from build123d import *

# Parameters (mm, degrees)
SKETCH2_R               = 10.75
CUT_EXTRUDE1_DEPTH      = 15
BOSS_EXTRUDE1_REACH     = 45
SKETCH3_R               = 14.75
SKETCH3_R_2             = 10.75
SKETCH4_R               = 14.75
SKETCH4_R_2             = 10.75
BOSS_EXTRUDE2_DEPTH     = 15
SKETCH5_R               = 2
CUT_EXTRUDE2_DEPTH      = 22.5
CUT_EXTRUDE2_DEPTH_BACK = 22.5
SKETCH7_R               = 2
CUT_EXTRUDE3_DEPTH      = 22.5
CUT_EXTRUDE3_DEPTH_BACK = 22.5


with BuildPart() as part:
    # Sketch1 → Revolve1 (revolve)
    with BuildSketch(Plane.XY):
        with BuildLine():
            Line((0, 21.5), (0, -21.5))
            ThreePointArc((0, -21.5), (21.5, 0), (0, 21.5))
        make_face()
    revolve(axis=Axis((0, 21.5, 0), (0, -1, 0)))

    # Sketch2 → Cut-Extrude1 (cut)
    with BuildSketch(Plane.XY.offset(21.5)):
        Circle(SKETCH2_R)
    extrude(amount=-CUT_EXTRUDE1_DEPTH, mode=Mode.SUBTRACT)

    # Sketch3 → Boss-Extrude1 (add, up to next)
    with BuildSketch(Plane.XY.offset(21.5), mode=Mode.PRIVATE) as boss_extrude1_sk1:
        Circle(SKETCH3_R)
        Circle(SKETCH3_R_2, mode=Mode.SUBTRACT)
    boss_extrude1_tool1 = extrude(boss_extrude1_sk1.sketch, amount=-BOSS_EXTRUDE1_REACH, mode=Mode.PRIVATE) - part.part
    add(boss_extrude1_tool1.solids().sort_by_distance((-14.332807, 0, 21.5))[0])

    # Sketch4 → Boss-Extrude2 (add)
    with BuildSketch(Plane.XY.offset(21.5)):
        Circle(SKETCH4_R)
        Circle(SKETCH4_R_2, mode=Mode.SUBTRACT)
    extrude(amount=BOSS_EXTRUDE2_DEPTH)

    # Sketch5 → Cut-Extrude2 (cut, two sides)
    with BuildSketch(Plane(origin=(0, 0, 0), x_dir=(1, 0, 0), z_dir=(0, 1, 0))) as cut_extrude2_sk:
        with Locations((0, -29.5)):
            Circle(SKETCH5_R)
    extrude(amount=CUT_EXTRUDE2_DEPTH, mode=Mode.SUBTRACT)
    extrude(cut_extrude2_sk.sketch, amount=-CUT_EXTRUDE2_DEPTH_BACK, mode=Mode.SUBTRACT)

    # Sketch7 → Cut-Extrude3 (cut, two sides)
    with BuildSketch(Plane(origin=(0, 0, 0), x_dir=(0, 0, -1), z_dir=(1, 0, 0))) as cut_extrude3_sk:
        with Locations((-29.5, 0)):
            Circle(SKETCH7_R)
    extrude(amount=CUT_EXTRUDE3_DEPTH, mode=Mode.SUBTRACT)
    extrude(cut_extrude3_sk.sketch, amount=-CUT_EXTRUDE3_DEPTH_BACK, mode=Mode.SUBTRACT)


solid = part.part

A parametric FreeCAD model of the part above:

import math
import FreeCAD as App
import Part
import Sketcher

V = App.Vector
Q = App.Units.Quantity

doc = App.newDocument("Part")
body = doc.addObject("PartDesign::Body", "Body")

sketch1 = body.newObject("Sketcher::SketchObject", "Sketch")
sketch1.AttachmentSupport = (doc.getObject("XY_Plane"), [""])
sketch1.MapMode = "FlatFace"
sketch1.addGeometry(Part.LineSegment(V(0, 21.5, 0), V(0, -21.5, 0)), False)
sketch1.addGeometry(Part.ArcOfCircle(Part.Circle(V(0, 0, 0), V(0, 0, 1), 21.5), math.radians(-90), math.radians(90)), False)
sketch1.addConstraint(Sketcher.Constraint("Coincident", 0, 1, 1, 2))
sketch1.addConstraint(Sketcher.Constraint("Coincident", 1, 1, 0, 2))
sketch1.addConstraint(Sketcher.Constraint("Vertical", 0))
sketch1.addConstraint(Sketcher.Constraint("Coincident", 1, 3, -1, 1))
sketch1.addConstraint(Sketcher.Constraint("PointOnObject", 0, 1, -2))
sketch1.addConstraint(Sketcher.Constraint("Radius", 1, Q("21.5 mm")))
revolution = body.newObject("PartDesign::Revolution", "Revolution")
revolution.Profile = sketch1
revolution.ReferenceAxis = (sketch1, ["V_Axis"])
revolution.Angle = 360

sketch2 = body.newObject("Sketcher::SketchObject", "Sketch001")
sketch2.AttachmentSupport = (doc.getObject("XY_Plane"), [""])
sketch2.MapMode = "FlatFace"
sketch2.AttachmentOffset = App.Placement(V(0, 0, 21.5), App.Rotation())
sketch2.addGeometry(Part.Circle(V(0, 0, 0), V(0, 0, 1), 10.75), False)
sketch2.addConstraint(Sketcher.Constraint("Coincident", 0, 3, -1, 1))
sketch2.addConstraint(Sketcher.Constraint("Diameter", 0, Q("21.5 mm")))
pocket1 = body.newObject("PartDesign::Pocket", "Pocket")
pocket1.Profile = sketch2
pocket1.Length = 15

sketch3 = body.newObject("Sketcher::SketchObject", "Sketch002")
sketch3.AttachmentSupport = (doc.getObject("XY_Plane"), [""])
sketch3.MapMode = "FlatFace"
sketch3.AttachmentOffset = App.Placement(V(0, 0, 21.5), App.Rotation())
sketch3.addGeometry(Part.Circle(V(0, 0, 0), V(0, 0, 1), 14.75), False)
sketch3.addGeometry(Part.Circle(V(0, 0, 0), V(0, 0, 1), 10.75), False)
sketch3.addConstraint(Sketcher.Constraint("Coincident", 0, 3, -1, 1))
sketch3.addConstraint(Sketcher.Constraint("Coincident", 1, 3, -1, 1))
sketch3.addConstraint(Sketcher.Constraint("Diameter", 0, Q("29.5 mm")))
sketch3.addConstraint(Sketcher.Constraint("Diameter", 1, Q("21.5 mm")))
pad1 = body.newObject("PartDesign::Pad", "Pad")
pad1.Profile = sketch3
pad1.Type = "UpToFirst"
pad1.Reversed = True

sketch4 = body.newObject("Sketcher::SketchObject", "Sketch003")
sketch4.AttachmentSupport = (doc.getObject("XY_Plane"), [""])
sketch4.MapMode = "FlatFace"
sketch4.AttachmentOffset = App.Placement(V(0, 0, 21.5), App.Rotation())
sketch4.addGeometry(Part.Circle(V(0, 0, 0), V(0, 0, 1), 14.75), False)
sketch4.addGeometry(Part.Circle(V(0, 0, 0), V(0, 0, 1), 10.75), False)
sketch4.addConstraint(Sketcher.Constraint("Coincident", 0, 3, -1, 1))
sketch4.addConstraint(Sketcher.Constraint("Coincident", 1, 3, -1, 1))
sketch4.addConstraint(Sketcher.Constraint("Diameter", 0, Q("29.5 mm")))
sketch4.addConstraint(Sketcher.Constraint("Diameter", 1, Q("21.5 mm")))
pad2 = body.newObject("PartDesign::Pad", "Pad001")
pad2.Profile = sketch4
pad2.Length = 15

sketch5 = body.newObject("Sketcher::SketchObject", "Sketch004")
sketch5.AttachmentSupport = (doc.getObject("XZ_Plane"), [""])
sketch5.MapMode = "FlatFace"
sketch5.addGeometry(Part.Circle(V(0, 29.5, 0), V(0, 0, 1), 2), False)
sketch5.addConstraint(Sketcher.Constraint("PointOnObject", 0, 3, -2))
sketch5.addConstraint(Sketcher.Constraint("Diameter", 0, Q("4 mm")))
sketch5.addConstraint(Sketcher.Constraint("DistanceY", -1, 1, 0, 3, Q("29.5 mm")))
pocket2 = body.newObject("PartDesign::Pocket", "Pocket001")
pocket2.Profile = sketch5
pocket2.Type = "ThroughAll"
pocket2.Midplane = True

sketch6 = body.newObject("Sketcher::SketchObject", "Sketch005")
sketch6.AttachmentSupport = (doc.getObject("YZ_Plane"), [""])
sketch6.MapMode = "FlatFace"
sketch6.addGeometry(Part.Circle(V(0, 29.5, 0), V(0, 0, 1), 2), False)
sketch6.addConstraint(Sketcher.Constraint("PointOnObject", 0, 3, -2))
sketch6.addConstraint(Sketcher.Constraint("Diameter", 0, Q("4 mm")))
sketch6.addConstraint(Sketcher.Constraint("DistanceY", -1, 1, 0, 3, Q("29.5 mm")))
pocket3 = body.newObject("PartDesign::Pocket", "Pocket002")
pocket3.Profile = sketch6
pocket3.Type = "ThroughAll"
pocket3.Midplane = True

doc.recompute()
